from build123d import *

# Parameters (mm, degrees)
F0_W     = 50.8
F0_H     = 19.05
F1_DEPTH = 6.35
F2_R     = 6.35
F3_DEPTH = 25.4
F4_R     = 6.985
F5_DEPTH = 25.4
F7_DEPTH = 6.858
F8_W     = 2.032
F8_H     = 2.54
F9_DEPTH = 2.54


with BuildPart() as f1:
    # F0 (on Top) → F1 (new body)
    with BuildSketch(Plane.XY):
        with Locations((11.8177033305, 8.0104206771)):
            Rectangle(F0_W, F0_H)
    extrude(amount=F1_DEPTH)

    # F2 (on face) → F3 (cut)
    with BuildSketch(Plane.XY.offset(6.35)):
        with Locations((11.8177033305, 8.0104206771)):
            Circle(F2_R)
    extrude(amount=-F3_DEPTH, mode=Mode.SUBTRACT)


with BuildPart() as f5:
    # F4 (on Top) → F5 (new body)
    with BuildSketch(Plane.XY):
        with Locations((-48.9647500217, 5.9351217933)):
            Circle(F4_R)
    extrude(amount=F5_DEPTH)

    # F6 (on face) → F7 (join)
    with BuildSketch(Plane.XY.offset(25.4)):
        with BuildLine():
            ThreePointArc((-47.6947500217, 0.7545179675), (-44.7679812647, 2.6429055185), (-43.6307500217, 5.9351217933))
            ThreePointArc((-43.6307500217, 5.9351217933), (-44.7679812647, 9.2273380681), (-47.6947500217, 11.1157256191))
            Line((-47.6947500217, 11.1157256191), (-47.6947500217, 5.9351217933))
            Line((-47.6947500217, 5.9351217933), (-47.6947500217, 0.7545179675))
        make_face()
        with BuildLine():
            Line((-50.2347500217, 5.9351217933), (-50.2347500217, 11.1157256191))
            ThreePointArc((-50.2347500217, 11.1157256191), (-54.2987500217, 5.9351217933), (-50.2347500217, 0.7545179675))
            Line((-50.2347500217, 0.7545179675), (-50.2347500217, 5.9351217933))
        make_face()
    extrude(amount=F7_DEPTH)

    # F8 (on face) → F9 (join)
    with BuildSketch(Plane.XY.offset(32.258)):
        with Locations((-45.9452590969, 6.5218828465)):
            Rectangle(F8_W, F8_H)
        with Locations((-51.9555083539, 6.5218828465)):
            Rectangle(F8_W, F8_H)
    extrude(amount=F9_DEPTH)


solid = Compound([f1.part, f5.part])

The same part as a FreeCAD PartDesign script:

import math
import FreeCAD as App
import Part
import Sketcher
from FreeCAD import Vector
Q = App.Units.Quantity

doc = App.newDocument("Part")
body = doc.addObject("PartDesign::Body", "Body")

# Sketch on XY plane
sketch1 = doc.addObject("Sketcher::SketchObject", "Sketch")
body.addObject(sketch1)
sketch1.AttachmentSupport = (doc.XY_Plane, [""])
sketch1.MapMode = "FlatFace"
sketch1.addGeometry([
    Part.LineSegment(Vector(-14, 18, 0), Vector(-14, -2, 0)),
    Part.LineSegment(Vector(-14, -2, 0), Vector(37, -2, 0)),
    Part.LineSegment(Vector(37, -2, 0), Vector(37, 18, 0)),
    Part.LineSegment(Vector(37, 18, 0), Vector(-14, 18, 0)),
], False)
sketch1.addConstraint([
    Sketcher.Constraint("Coincident", 0, 2, 1, 1),
    Sketcher.Constraint("Coincident", 1, 2, 2, 1),
    Sketcher.Constraint("Coincident", 2, 2, 3, 1),
    Sketcher.Constraint("Coincident", 3, 2, 0, 1),
    Sketcher.Constraint("Vertical", 0),
    Sketcher.Constraint("Horizontal", 1),
    Sketcher.Constraint("Vertical", 2),
    Sketcher.Constraint("Horizontal", 3),
    Sketcher.Constraint("DistanceX", 1, 1, 1, 2, Q("2 in")),
    Sketcher.Constraint("DistanceY", 0, 2, 0, 1, Q("0.75 in")),
    Sketcher.Constraint("DistanceY", 0, 2, -1, 1, 1.514579),
    Sketcher.Constraint("DistanceX", 0, 2, -1, 1, 13.582297),
])
pad1 = doc.addObject("PartDesign::Pad", "Pad")
body.addObject(pad1)
pad1.Profile = sketch1
pad1.Length = Q("0.25 in")

# Sketch on XY plane
sketch2 = doc.addObject("Sketcher::SketchObject", "Sketch001")
body.addObject(sketch2)
sketch2.AttachmentSupport = (doc.XY_Plane, [""])
sketch2.MapMode = "FlatFace"
sketch2.AttachmentOffset = App.Placement(Vector(0, 0, 0.25 * 25.4), App.Rotation())
sketch2.addGeometry(Part.Circle(Vector(12, 8, 0), Vector(0, 0, 1), 6), False)
sketch2.addConstraint([
    Sketcher.Constraint("Diameter", 0, Q("0.5 in")),
    Sketcher.Constraint("DistanceY", -1, 1, 0, 3, 8.010421),
    Sketcher.Constraint("DistanceX", -1, 1, 0, 3, 11.817703),
])
pocket1 = doc.addObject("PartDesign::Pocket", "Pocket")
body.addObject(pocket1)
pocket1.Profile = sketch2
pocket1.Length = Q("1 in")
body2 = doc.addObject("PartDesign::Body", "Body001")

# Sketch on XY plane
sketch3 = doc.addObject("Sketcher::SketchObject", "Sketch002")
body2.addObject(sketch3)
sketch3.AttachmentSupport = (doc.getObject("XY_Plane001"), [""])
sketch3.MapMode = "FlatFace"
sketch3.addGeometry(Part.Circle(Vector(-49, 6, 0), Vector(0, 0, 1), 7), False)
sketch3.addConstraint([
    Sketcher.Constraint("Diameter", 0, Q("0.55 in")),
    Sketcher.Constraint("DistanceX", 0, 3, -1, 1, 48.96475),
    Sketcher.Constraint("DistanceY", -1, 1, 0, 3, 5.935122),
])
pad2 = doc.addObject("PartDesign::Pad", "Pad001")
body2.addObject(pad2)
pad2.Profile = sketch3
pad2.Length = Q("1 in")

# Sketch on XY plane
sketch4 = doc.addObject("Sketcher::SketchObject", "Sketch003")
body2.addObject(sketch4)
sketch4.AttachmentSupport = (doc.getObject("XY_Plane001"), [""])
sketch4.MapMode = "FlatFace"
sketch4.AttachmentOffset = App.Placement(Vector(0, 0, 1 * 25.4), App.Rotation())
sketch4.addGeometry([
    Part.ArcOfCircle(Part.Circle(Vector(-49, 6, 0), Vector(0, 0, 1), 5), math.radians(-76), math.radians(0)),  # 0
    Part.ArcOfCircle(Part.Circle(Vector(-49, 6, 0), Vector(0, 0, 1), 5), math.radians(0), math.radians(76)),  # 1
    Part.LineSegment(Vector(-48, 11, 0), Vector(-48, 1, 0)),  # 2
    Part.ArcOfCircle(Part.Circle(Vector(-49, 6, 0), Vector(0, 0, 1), 5), math.radians(104), math.radians(256)),  # 3
    Part.LineSegment(Vector(-50, 1, 0), Vector(-50, 11, 0)),  # 4
], False)
sketch4.addConstraint([
    Sketcher.Constraint("Tangent", 0, 2, 1, 1),
    Sketcher.Constraint("Coincident", 1, 2, 2, 1),
    Sketcher.Constraint("Coincident", 2, 2, 0, 1),
    Sketcher.Constraint("Coincident", 3, 1, 4, 2),
    Sketcher.Constraint("Coincident", 4, 1, 3, 2),
    Sketcher.Constraint("Vertical", 2),
    Sketcher.Constraint("Vertical", 4),
    Sketcher.Constraint("Coincident", 3, 3, 0, 3),
    Sketcher.Constraint("Equal", 0, 1),
    Sketcher.Constraint("Equal", 1, 3),
    Sketcher.Constraint("Horizontal", 3, 3, 0, 2),
    Sketcher.Constraint("Horizontal", 1, 2, 3, 1),
    Sketcher.Constraint("Radius", 0, Q("0.21 in")),
    Sketcher.Constraint("DistanceX", 3, 1, 1, 2, Q("0.1 in")),
    Sketcher.Constraint("DistanceX", 0, 3, -1, 1, 48.96475),
    Sketcher.Constraint("DistanceY", -1, 1, 0, 3, 5.935122),
])
pad3 = doc.addObject("PartDesign::Pad", "Pad002")
body2.addObject(pad3)
pad3.Profile = sketch4
pad3.Length = Q("0.27 in")

# Sketch on XY plane
sketch5 = doc.addObject("Sketcher::SketchObject", "Sketch004")
body2.addObject(sketch5)
sketch5.AttachmentSupport = (doc.getObject("XY_Plane001"), [""])
sketch5.MapMode = "FlatFace"
sketch5.AttachmentOffset = App.Placement(Vector(0, 0, 1.27 * 25.4), App.Rotation())
sketch5.addGeometry([
    Part.LineSegment(Vector(-47, 7.8, 0), Vector(-47, 5.3, 0)),  # 0
    Part.LineSegment(Vector(-47, 5.3, 0), Vector(-44.9, 5.3, 0)),  # 1
    Part.LineSegment(Vector(-44.9, 5.3, 0), Vector(-44.9, 7.8, 0)),  # 2
    Part.LineSegment(Vector(-44.9, 7.8, 0), Vector(-47, 7.8, 0)),  # 3
    Part.LineSegment(Vector(-53, 7.8, 0), Vector(-53, 5.3, 0)),  # 4
    Part.LineSegment(Vector(-53, 5.3, 0), Vector(-50.9, 5.3, 0)),  # 5
    Part.LineSegment(Vector(-50.9, 5.3, 0), Vector(-50.9, 7.8, 0)),  # 6
    Part.LineSegment(Vector(-50.9, 7.8, 0), Vector(-53, 7.8, 0)),  # 7
], False)
sketch5.addConstraint([
    Sketcher.Constraint("Coincident", 0, 2, 1, 1),
    Sketcher.Constraint("Coincident", 1, 2, 2, 1),
    Sketcher.Constraint("Coincident", 2, 2, 3, 1),
    Sketcher.Constraint("Coincident", 3, 2, 0, 1),
    Sketcher.Constraint("Coincident", 4, 2, 5, 1),
    Sketcher.Constraint("Coincident", 5, 2, 6, 1),
    Sketcher.Constraint("Coincident", 6, 2, 7, 1),
    Sketcher.Constraint("Coincident", 7, 2, 4, 1),
    Sketcher.Constraint("Vertical", 0),
    Sketcher.Constraint("Horizontal", 1),
    Sketcher.Constraint("Vertical", 2),
    Sketcher.Constraint("Horizontal", 3),
    Sketcher.Constraint("Vertical", 4),
    Sketcher.Constraint("Horizontal", 5),
    Sketcher.Constraint("Vertical", 6),
    Sketcher.Constraint("Horizontal", 7),
    Sketcher.Constraint("Horizontal", 1, 2, 4, 2),
    Sketcher.Constraint("Horizontal", 3, 2, 6, 2),
    Sketcher.Constraint("Equal", 3, 5),
    Sketcher.Constraint("DistanceY", 0, 2, 0, 1, Q("0.1 in")),
    Sketcher.Constraint("DistanceX", 1, 1, 1, 2, Q("0.08 in")),
    Sketcher.Constraint("DistanceX", 0, 2, -1, 1, 46.961259),
    Sketcher.Constraint("DistanceX", 4, 2, -1, 1, 52.971508),
    Sketcher.Constraint("DistanceY", -1, 1, 0, 2, 5.251883),
])
pad4 = doc.addObject("PartDesign::Pad", "Pad003")
body2.addObject(pad4)
pad4.Profile = sketch5
pad4.Length = Q("0.1 in")

doc.recompute()
